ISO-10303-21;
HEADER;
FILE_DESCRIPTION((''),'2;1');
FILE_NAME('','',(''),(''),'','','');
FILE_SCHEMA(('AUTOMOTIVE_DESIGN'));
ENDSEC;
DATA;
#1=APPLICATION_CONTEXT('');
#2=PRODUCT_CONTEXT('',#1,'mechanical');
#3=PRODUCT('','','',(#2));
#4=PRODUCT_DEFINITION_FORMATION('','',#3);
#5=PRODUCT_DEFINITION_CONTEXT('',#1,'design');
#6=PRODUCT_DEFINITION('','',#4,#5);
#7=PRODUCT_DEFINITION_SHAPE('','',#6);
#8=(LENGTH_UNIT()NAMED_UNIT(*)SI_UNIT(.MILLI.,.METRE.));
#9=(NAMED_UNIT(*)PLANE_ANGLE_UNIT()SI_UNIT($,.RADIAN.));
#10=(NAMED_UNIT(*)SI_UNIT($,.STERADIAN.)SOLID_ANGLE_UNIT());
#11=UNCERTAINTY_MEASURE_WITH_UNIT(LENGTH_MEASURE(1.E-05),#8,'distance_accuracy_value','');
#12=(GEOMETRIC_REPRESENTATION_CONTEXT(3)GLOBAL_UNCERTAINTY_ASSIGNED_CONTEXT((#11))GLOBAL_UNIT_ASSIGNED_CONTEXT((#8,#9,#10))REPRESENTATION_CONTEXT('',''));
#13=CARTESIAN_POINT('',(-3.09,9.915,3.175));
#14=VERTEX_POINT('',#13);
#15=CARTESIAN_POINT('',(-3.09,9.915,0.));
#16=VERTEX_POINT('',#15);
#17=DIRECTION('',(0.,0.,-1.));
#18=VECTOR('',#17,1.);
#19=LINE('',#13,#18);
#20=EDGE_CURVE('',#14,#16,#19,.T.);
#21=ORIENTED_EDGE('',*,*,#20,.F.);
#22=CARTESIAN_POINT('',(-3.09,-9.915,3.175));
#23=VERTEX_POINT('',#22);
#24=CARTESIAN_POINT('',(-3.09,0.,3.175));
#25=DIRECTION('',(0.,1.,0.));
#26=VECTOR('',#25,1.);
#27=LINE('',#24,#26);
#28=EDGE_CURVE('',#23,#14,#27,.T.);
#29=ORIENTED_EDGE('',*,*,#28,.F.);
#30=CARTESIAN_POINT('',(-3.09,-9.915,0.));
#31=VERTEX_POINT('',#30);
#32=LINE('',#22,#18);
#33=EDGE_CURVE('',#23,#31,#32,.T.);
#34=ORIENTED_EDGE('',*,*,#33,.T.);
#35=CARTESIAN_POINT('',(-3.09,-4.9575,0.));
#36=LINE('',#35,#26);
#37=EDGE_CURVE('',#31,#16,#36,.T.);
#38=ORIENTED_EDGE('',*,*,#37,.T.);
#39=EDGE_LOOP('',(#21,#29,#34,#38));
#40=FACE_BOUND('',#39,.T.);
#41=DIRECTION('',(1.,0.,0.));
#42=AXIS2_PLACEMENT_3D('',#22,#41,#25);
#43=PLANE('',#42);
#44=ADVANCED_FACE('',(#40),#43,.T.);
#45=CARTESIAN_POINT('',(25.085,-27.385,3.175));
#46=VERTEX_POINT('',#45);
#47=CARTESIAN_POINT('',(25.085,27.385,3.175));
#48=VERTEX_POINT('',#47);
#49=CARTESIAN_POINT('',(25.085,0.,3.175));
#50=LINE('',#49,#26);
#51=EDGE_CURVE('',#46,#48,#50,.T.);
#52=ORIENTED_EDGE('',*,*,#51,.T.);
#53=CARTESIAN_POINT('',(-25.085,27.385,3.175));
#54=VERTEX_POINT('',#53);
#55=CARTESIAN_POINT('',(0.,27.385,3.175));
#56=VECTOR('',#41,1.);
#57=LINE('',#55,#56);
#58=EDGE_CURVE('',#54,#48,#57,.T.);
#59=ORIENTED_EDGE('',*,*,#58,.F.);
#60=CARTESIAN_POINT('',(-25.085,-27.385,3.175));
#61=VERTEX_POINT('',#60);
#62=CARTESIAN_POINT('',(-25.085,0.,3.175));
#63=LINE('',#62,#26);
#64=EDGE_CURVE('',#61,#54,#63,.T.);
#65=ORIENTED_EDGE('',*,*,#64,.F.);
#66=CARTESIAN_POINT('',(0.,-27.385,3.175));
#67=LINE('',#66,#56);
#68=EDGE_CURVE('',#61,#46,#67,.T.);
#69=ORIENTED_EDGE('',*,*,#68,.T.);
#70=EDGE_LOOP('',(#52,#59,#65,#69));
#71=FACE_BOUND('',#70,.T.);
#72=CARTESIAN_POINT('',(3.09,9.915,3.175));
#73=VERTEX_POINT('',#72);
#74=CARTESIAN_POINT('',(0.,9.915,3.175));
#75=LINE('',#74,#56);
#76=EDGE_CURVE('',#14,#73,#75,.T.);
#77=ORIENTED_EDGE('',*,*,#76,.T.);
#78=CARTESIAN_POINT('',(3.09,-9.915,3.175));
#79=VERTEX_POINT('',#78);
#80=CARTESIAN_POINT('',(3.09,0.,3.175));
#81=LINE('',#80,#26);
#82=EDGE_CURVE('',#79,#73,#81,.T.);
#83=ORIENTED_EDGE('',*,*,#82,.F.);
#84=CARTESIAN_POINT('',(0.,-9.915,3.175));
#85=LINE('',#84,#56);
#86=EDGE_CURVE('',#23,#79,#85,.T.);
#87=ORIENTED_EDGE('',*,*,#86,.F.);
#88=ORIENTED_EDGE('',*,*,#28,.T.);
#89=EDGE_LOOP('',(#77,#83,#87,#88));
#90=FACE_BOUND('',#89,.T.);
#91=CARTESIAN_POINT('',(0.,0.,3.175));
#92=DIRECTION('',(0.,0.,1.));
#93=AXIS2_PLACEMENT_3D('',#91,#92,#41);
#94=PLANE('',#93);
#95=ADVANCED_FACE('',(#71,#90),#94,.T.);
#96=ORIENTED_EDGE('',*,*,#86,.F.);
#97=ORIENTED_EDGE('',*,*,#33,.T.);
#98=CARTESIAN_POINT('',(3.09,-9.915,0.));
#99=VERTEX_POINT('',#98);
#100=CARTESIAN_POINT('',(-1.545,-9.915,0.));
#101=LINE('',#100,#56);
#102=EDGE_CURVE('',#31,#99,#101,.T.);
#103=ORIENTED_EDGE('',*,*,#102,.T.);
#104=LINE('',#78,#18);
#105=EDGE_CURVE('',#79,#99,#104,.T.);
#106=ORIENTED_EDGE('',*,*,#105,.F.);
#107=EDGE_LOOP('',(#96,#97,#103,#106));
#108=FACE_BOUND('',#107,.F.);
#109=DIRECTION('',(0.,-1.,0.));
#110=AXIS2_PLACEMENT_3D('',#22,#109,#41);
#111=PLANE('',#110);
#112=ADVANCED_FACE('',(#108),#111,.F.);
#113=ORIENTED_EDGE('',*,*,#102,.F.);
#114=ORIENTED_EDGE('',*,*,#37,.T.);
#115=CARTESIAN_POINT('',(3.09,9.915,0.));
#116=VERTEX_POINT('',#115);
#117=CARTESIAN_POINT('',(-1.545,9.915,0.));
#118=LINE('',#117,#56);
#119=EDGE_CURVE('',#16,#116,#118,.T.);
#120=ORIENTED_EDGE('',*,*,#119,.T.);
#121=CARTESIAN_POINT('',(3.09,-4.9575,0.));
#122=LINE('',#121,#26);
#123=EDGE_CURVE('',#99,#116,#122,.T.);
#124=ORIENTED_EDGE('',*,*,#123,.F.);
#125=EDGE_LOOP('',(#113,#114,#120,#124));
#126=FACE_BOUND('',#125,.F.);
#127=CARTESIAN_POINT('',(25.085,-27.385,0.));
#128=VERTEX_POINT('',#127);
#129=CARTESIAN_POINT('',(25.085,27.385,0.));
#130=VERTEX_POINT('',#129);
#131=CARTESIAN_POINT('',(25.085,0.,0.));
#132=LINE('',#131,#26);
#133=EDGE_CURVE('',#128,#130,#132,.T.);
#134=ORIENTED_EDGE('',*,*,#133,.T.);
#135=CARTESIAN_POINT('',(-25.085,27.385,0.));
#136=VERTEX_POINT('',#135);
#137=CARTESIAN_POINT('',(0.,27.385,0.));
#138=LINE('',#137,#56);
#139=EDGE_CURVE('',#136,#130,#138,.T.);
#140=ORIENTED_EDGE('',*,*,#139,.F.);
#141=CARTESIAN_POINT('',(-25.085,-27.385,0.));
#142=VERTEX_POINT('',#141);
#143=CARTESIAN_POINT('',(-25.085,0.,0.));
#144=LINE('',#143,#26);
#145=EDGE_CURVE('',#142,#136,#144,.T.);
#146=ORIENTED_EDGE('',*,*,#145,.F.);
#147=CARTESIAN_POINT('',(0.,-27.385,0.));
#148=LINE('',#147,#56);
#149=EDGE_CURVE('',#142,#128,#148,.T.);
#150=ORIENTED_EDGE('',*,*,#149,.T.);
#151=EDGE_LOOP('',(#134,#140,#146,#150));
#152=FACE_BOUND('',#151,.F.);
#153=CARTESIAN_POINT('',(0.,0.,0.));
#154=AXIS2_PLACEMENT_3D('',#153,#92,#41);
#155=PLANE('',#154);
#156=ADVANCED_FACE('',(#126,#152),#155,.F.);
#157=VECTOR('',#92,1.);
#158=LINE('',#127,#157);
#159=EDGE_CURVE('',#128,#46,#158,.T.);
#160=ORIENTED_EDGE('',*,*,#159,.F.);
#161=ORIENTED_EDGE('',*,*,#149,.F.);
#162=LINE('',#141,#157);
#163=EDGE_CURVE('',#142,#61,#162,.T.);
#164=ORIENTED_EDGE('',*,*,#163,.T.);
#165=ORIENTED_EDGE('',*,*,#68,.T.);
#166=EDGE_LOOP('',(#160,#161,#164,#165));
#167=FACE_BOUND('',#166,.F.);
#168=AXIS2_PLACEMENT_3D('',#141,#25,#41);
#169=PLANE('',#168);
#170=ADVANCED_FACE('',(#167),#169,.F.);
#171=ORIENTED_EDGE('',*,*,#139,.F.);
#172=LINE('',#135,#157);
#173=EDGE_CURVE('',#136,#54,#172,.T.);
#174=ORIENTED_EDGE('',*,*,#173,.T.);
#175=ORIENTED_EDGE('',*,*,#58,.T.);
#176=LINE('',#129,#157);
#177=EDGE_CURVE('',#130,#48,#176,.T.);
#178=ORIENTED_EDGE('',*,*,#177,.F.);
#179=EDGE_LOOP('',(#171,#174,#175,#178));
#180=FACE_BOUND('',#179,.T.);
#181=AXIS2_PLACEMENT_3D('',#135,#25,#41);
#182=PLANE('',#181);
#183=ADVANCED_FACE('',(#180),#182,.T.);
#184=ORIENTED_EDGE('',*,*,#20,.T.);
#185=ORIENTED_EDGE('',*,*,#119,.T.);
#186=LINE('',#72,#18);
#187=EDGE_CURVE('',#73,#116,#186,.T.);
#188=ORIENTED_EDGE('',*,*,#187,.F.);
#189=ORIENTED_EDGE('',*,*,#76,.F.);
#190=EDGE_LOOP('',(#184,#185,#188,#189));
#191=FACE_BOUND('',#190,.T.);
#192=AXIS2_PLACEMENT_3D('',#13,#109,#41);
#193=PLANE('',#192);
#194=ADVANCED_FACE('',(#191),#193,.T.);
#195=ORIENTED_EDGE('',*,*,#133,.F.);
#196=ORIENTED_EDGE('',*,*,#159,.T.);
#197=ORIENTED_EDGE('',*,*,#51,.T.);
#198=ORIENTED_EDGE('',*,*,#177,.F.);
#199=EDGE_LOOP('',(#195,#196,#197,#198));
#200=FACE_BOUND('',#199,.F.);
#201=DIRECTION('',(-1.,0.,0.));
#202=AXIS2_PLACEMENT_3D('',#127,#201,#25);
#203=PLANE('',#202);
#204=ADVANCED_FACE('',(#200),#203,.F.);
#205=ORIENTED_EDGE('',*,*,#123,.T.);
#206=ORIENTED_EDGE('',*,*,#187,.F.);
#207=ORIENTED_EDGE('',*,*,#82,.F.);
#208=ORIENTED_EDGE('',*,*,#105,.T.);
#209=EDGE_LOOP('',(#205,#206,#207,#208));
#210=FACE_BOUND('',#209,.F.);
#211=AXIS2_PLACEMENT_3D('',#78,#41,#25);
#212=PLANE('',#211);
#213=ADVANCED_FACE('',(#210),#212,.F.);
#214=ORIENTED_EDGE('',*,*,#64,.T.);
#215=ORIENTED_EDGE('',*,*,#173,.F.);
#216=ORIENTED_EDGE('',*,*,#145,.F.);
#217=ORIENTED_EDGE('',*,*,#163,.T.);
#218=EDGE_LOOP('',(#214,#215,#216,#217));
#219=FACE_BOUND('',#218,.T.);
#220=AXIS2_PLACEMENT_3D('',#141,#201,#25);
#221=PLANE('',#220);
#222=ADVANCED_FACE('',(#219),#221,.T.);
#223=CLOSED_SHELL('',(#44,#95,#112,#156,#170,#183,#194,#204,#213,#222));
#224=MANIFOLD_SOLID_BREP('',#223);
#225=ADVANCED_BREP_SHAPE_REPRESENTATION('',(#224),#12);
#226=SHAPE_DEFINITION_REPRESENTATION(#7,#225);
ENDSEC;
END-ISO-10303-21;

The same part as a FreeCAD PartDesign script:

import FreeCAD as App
import Part
import Sketcher
from FreeCAD import Vector


def add_polygon(sketch, points):
    """Adds a closed chain of lines whose ends are joined by coincident constraints."""
    first, n = sketch.GeometryCount, len(points)
    for a, b in zip(points, points[1:] + points[:1]):
        sketch.addGeometry(Part.LineSegment(App.Vector(*a, 0), App.Vector(*b, 0)), False)
    for i in range(n):
        sketch.addConstraint(Sketcher.Constraint("Coincident", first + i, 2, first + (i + 1) % n, 1))

doc = App.newDocument("Part")
params = doc.addObject("Spreadsheet::Sheet", "Params")
for row, (alias, value) in enumerate([
    ("pad1_length", "0.125 in"),
], start=1):
    params.set(f"A{row}", alias)
    params.set(f"B{row}", "=" + value)
    params.setAlias(f"B{row}", alias)

body = doc.addObject("PartDesign::Body", "Body")

sketch1 = body.newObject("Sketcher::SketchObject", "Sketch")
sketch1.AttachmentSupport = (doc.getObject("XY_Plane"), [""])
sketch1.MapMode = "FlatFace"
add_polygon(sketch1, [(-25.085, 27.385), (-25.085, -27.385), (25.085, -27.385), (25.085, 27.385)])
sketch1.addConstraint(Sketcher.Constraint("Vertical", 0))
sketch1.addConstraint(Sketcher.Constraint("Horizontal", 1))
sketch1.addConstraint(Sketcher.Constraint("Vertical", 2))
sketch1.addConstraint(Sketcher.Constraint("Horizontal", 3))
sketch1.addConstraint(Sketcher.Constraint("Symmetric", 0, 2, 2, 2, -1, 1))
sketch1.addConstraint(Sketcher.Constraint("DistanceX", 1, 1, 1, 2, 50.17))
sketch1.addConstraint(Sketcher.Constraint("DistanceY", 0, 2, 0, 1, 54.77))
pad1 = body.newObject("PartDesign::Pad", "Pad")
pad1.Profile = sketch1
pad1.setExpression("Length", "Params.pad1_length")

sketch2 = body.newObject("Sketcher::SketchObject", "Sketch001")
sketch2.AttachmentSupport = (doc.getObject("XY_Plane"), [""])
sketch2.MapMode = "FlatFace"
sketch2.AttachmentOffset = App.Placement(Vector(0, 0, 0.125 * 25.4), App.Rotation())
add_polygon(sketch2, [(-3.09, 9.915), (-3.09, -9.915), (3.09, -9.915), (3.09, 9.915)])
sketch2.addConstraint(Sketcher.Constraint("Vertical", 0))
sketch2.addConstraint(Sketcher.Constraint("Horizontal", 1))
sketch2.addConstraint(Sketcher.Constraint("Vertical", 2))
sketch2.addConstraint(Sketcher.Constraint("Horizontal", 3))
sketch2.addConstraint(Sketcher.Constraint("Symmetric", 0, 2, 2, 2, -1, 1))
sketch2.addConstraint(Sketcher.Constraint("DistanceX", 1, 1, 1, 2, 6.18))
sketch2.addConstraint(Sketcher.Constraint("DistanceY", 0, 2, 0, 1, 19.83))
pocket1 = body.newObject("PartDesign::Pocket", "Pocket")
pocket1.Profile = sketch2
pocket1.Type = "ThroughAll"

doc.recompute()
